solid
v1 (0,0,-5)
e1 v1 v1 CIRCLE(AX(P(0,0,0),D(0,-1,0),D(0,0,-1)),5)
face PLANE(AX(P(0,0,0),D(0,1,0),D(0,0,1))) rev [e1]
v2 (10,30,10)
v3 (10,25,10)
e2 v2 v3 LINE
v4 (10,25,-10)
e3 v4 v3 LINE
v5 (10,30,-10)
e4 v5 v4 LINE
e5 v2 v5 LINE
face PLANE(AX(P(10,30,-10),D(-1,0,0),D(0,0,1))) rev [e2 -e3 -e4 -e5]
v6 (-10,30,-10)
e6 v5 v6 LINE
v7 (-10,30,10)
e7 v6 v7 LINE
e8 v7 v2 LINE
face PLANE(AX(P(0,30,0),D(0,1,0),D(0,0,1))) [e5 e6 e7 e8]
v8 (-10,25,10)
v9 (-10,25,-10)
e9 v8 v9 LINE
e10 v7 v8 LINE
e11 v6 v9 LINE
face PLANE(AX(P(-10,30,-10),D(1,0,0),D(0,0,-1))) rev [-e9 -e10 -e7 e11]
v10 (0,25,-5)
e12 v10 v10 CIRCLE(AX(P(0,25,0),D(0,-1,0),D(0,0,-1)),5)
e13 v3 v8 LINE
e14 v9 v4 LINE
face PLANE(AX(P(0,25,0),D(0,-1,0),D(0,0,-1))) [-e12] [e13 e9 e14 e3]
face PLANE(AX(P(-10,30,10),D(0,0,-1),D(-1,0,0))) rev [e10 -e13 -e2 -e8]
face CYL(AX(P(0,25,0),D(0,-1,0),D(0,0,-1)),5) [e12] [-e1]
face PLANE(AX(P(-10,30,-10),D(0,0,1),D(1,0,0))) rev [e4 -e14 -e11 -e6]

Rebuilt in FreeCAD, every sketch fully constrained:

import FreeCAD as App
import Part
import Sketcher
Q = App.Units.Quantity


def add_polygon(sketch, points):
    """Adds a closed chain of lines whose ends are joined by coincident constraints."""
    first, n = sketch.GeometryCount, len(points)
    for a, b in zip(points, points[1:] + points[:1]):
        sketch.addGeometry(Part.LineSegment(App.Vector(*a, 0), App.Vector(*b, 0)), False)
    for i in range(n):
        sketch.addConstraint(Sketcher.Constraint("Coincident", first + i, 2, first + (i + 1) % n, 1))

doc = App.newDocument("Part")
body = doc.addObject("PartDesign::Body", "Body")

sketch1 = doc.addObject("Sketcher::SketchObject", "Sketch")
body.addObject(sketch1)
sketch1.AttachmentSupport = (doc.XZ_Plane, [""])
sketch1.MapMode = "FlatFace"
add_polygon(sketch1, [(-10, -10), (-10, 10), (10, 10), (10, -10)])
sketch1.addConstraint(Sketcher.Constraint("Vertical", 0))
sketch1.addConstraint(Sketcher.Constraint("Horizontal", 1))
sketch1.addConstraint(Sketcher.Constraint("Vertical", 2))
sketch1.addConstraint(Sketcher.Constraint("Horizontal", 3))
sketch1.addConstraint(Sketcher.Constraint("Symmetric", 0, 2, 2, 2, -1, 1))
sketch1.addConstraint(Sketcher.Constraint("Equal", 3, 0))
sketch1.addConstraint(Sketcher.Constraint("DistanceX", 1, 1, 1, 2, Q("20 mm")))
pad1 = doc.addObject("PartDesign::Pad", "Pad")
body.addObject(pad1)
pad1.Profile = sketch1
pad1.Length = 30
pad1.Reversed = True

sketch2 = doc.addObject("Sketcher::SketchObject", "Sketch001")
body.addObject(sketch2)
sketch2.AttachmentSupport = (doc.XZ_Plane, [""])
sketch2.MapMode = "FlatFace"
add_polygon(sketch2, [(-10, 10), (-10, -10), (10, -10), (10, 10)])
sketch2.addGeometry(Part.Circle(App.Vector(0, 0, 0), App.Vector(0, 0, 1), 5), False)
sketch2.addConstraint(Sketcher.Constraint("Vertical", 0))
sketch2.addConstraint(Sketcher.Constraint("Horizontal", 1))
sketch2.addConstraint(Sketcher.Constraint("Vertical", 2))
sketch2.addConstraint(Sketcher.Constraint("Horizontal", 3))
sketch2.addConstraint(Sketcher.Constraint("Coincident", 4, 3, -1, 1))
sketch2.addConstraint(Sketcher.Constraint("Symmetric", 0, 2, 2, 2, -1, 1))
sketch2.addConstraint(Sketcher.Constraint("Equal", 3, 0))
sketch2.addConstraint(Sketcher.Constraint("Diameter", 4, Q("10 mm")))
sketch2.addConstraint(Sketcher.Constraint("DistanceX", 1, 1, 1, 2, Q("20 mm")))
pocket1 = doc.addObject("PartDesign::Pocket", "Pocket")
body.addObject(pocket1)
pocket1.Profile = sketch2
pocket1.Length = 25

doc.recompute()
